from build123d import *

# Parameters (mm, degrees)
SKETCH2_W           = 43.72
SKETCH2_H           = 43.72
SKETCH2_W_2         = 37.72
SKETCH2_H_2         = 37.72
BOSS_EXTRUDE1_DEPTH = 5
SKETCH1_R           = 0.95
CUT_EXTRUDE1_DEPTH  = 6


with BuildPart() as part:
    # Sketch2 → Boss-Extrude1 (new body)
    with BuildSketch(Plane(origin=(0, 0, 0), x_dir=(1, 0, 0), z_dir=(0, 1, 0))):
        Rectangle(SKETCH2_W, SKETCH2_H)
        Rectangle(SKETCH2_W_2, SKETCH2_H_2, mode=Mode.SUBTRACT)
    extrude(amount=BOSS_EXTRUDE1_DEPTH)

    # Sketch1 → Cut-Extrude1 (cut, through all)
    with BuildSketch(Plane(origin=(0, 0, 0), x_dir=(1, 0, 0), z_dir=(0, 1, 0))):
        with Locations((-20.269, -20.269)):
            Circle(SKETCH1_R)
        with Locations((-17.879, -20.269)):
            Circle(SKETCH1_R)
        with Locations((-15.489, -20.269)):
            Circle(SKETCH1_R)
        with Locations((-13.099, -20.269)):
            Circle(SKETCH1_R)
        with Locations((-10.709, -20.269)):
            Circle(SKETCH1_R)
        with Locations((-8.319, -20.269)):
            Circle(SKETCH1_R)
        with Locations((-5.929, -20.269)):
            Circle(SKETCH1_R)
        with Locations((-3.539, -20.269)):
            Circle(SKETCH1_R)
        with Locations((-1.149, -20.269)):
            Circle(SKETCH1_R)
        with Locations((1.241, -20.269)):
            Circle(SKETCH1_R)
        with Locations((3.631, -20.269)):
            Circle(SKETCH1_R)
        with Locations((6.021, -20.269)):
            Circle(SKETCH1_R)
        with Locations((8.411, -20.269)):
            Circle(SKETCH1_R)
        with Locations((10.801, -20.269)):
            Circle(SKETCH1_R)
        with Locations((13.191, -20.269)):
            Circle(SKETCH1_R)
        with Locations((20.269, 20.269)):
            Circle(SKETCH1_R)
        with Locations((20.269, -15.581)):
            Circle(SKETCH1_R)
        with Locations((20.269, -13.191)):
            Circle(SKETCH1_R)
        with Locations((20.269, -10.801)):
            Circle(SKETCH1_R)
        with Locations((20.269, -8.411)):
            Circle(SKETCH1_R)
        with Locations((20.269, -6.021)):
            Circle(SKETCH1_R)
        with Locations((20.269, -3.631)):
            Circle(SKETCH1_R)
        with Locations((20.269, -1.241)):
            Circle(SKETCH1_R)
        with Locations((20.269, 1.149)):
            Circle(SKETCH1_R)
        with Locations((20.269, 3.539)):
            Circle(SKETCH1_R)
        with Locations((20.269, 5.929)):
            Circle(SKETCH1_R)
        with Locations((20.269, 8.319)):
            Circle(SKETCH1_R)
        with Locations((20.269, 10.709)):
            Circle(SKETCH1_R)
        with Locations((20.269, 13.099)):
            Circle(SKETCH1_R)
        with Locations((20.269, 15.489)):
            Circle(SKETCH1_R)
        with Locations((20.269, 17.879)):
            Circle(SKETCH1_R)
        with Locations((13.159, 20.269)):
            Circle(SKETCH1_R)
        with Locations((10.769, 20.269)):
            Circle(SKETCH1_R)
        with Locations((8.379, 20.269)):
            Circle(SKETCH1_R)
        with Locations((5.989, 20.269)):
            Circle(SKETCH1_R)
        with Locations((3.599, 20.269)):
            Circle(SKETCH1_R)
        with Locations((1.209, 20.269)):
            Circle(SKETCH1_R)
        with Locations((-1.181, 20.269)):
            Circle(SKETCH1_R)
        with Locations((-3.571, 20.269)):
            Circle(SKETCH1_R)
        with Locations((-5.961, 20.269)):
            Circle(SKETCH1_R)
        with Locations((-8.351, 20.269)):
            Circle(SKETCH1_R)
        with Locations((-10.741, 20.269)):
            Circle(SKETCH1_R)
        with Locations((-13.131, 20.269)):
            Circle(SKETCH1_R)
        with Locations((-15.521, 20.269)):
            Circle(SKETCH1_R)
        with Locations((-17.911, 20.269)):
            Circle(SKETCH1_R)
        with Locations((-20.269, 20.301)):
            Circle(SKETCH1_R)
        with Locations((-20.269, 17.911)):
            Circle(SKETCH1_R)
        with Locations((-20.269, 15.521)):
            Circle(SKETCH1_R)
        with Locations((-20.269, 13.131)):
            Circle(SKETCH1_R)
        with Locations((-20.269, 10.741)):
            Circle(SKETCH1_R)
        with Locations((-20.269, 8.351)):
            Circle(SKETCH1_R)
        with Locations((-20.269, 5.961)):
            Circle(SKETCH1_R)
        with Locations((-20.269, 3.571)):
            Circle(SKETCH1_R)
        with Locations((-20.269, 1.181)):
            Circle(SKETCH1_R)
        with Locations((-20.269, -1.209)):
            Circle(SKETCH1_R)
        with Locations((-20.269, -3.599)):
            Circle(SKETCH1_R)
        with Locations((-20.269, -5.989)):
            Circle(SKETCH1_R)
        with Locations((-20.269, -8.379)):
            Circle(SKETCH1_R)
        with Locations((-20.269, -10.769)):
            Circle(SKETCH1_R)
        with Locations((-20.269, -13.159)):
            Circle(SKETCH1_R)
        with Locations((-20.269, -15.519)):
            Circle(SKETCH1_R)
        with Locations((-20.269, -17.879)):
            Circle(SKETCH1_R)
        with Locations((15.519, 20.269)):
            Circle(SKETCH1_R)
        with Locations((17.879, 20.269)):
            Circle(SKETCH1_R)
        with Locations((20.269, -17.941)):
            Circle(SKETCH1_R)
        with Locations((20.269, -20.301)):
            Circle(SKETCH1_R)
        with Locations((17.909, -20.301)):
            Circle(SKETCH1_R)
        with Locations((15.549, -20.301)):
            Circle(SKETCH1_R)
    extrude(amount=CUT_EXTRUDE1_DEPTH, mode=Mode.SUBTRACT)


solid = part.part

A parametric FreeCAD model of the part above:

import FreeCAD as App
import Part
import Sketcher

V = App.Vector


def add_polygon(sketch, points):
    """Adds a closed chain of lines whose ends are joined by coincident constraints."""
    first, n = sketch.GeometryCount, len(points)
    for a, b in zip(points, points[1:] + points[:1]):
        sketch.addGeometry(Part.LineSegment(App.Vector(*a, 0), App.Vector(*b, 0)), False)
    for i in range(n):
        sketch.addConstraint(Sketcher.Constraint("Coincident", first + i, 2, first + (i + 1) % n, 1))

doc = App.newDocument("Part")
body = doc.addObject("PartDesign::Body", "Body")

# Sketch on XZ plane
sketch1 = body.newObject("Sketcher::SketchObject", "Sketch")
sketch1.AttachmentSupport = (doc.getObject("XZ_Plane"), [""])
sketch1.MapMode = "FlatFace"
add_polygon(sketch1, [(-21.86, -21.86), (-21.86, 21.86), (21.86, 21.86), (21.86, -21.86)])  # lines 0-3
add_polygon(sketch1, [(18.86, 18.86), (-18.86, 18.86), (-18.86, -18.86), (18.86, -18.86)])  # lines 4-7
sketch1.addConstraint([
    Sketcher.Constraint("Vertical", 0),
    Sketcher.Constraint("Horizontal", 1),
    Sketcher.Constraint("Vertical", 2),
    Sketcher.Constraint("Horizontal", 3),
    Sketcher.Constraint("Horizontal", 4),
    Sketcher.Constraint("Vertical", 5),
    Sketcher.Constraint("Horizontal", 6),
    Sketcher.Constraint("Vertical", 7),
    Sketcher.Constraint("Symmetric", 0, 2, 2, 2, -1, 1),
    Sketcher.Constraint("Symmetric", 4, 2, 6, 2, -1, 1),
    Sketcher.Constraint("Equal", 3, 0),
    Sketcher.Constraint("Equal", 6, 5),
    Sketcher.Constraint("DistanceX", 0, 2, 4, 2, 3.0),
    Sketcher.Constraint("DistanceX", 1, 1, 1, 2, 43.72),
])
pad1 = body.newObject("PartDesign::Pad", "Pad")
pad1.Profile = sketch1
pad1.Length = 5
pad1.Reversed = True

# Sketch on XZ plane
sketch2 = body.newObject("Sketcher::SketchObject", "Sketch001")
sketch2.AttachmentSupport = (doc.getObject("XZ_Plane"), [""])
sketch2.MapMode = "FlatFace"
sketch2.addGeometry([
    Part.Circle(V(-20.269, 20.269, 0), V(0, 0, 1), 0.95),  # 0
    Part.Circle(V(-17.879, 20.269, 0), V(0, 0, 1), 0.95),  # 1
    Part.Circle(V(-15.489, 20.269, 0), V(0, 0, 1), 0.95),  # 2
    Part.Circle(V(-13.099, 20.269, 0), V(0, 0, 1), 0.95),  # 3
    Part.Circle(V(-10.709, 20.269, 0), V(0, 0, 1), 0.95),  # 4
    Part.Circle(V(-8.319, 20.269, 0), V(0, 0, 1), 0.95),  # 5
    Part.Circle(V(-5.929, 20.269, 0), V(0, 0, 1), 0.95),  # 6
    Part.Circle(V(-3.539, 20.269, 0), V(0, 0, 1), 0.95),  # 7
    Part.Circle(V(-1.149, 20.269, 0), V(0, 0, 1), 0.95),  # 8
    Part.Circle(V(1.241, 20.269, 0), V(0, 0, 1), 0.95),  # 9
    Part.Circle(V(3.631, 20.269, 0), V(0, 0, 1), 0.95),  # 10
    Part.Circle(V(6.021, 20.269, 0), V(0, 0, 1), 0.95),  # 11
    Part.Circle(V(8.411, 20.269, 0), V(0, 0, 1), 0.95),  # 12
    Part.Circle(V(10.801, 20.269, 0), V(0, 0, 1), 0.95),  # 13
    Part.Circle(V(13.191, 20.269, 0), V(0, 0, 1), 0.95),  # 14
    Part.Circle(V(20.269, -20.269, 0), V(0, 0, 1), 0.95),  # 15
    Part.Circle(V(20.269, 15.581, 0), V(0, 0, 1), 0.95),  # 16
    Part.Circle(V(20.269, 13.191, 0), V(0, 0, 1), 0.95),  # 17
    Part.Circle(V(20.269, 10.801, 0), V(0, 0, 1), 0.95),  # 18
    Part.Circle(V(20.269, 8.411, 0), V(0, 0, 1), 0.95),  # 19
    Part.Circle(V(20.269, 6.021, 0), V(0, 0, 1), 0.95),  # 20
    Part.Circle(V(20.269, 3.631, 0), V(0, 0, 1), 0.95),  # 21
    Part.Circle(V(20.269, 1.241, 0), V(0, 0, 1), 0.95),  # 22
    Part.Circle(V(20.269, -1.149, 0), V(0, 0, 1), 0.95),  # 23
    Part.Circle(V(20.269, -3.539, 0), V(0, 0, 1), 0.95),  # 24
    Part.Circle(V(20.269, -5.929, 0), V(0, 0, 1), 0.95),  # 25
    Part.Circle(V(20.269, -8.319, 0), V(0, 0, 1), 0.95),  # 26
    Part.Circle(V(20.269, -10.709, 0), V(0, 0, 1), 0.95),  # 27
    Part.Circle(V(20.269, -13.099, 0), V(0, 0, 1), 0.95),  # 28
    Part.Circle(V(20.269, -15.489, 0), V(0, 0, 1), 0.95),  # 29
    Part.Circle(V(20.269, -17.879, 0), V(0, 0, 1), 0.95),  # 30
    Part.Circle(V(13.159, -20.269, 0), V(0, 0, 1), 0.95),  # 31
    Part.Circle(V(10.769, -20.269, 0), V(0, 0, 1), 0.95),  # 32
    Part.Circle(V(8.379, -20.269, 0), V(0, 0, 1), 0.95),  # 33
    Part.Circle(V(5.989, -20.269, 0), V(0, 0, 1), 0.95),  # 34
    Part.Circle(V(3.599, -20.269, 0), V(0, 0, 1), 0.95),  # 35
    Part.Circle(V(1.209, -20.269, 0), V(0, 0, 1), 0.95),  # 36
    Part.Circle(V(-1.181, -20.269, 0), V(0, 0, 1), 0.95),  # 37
    Part.Circle(V(-3.571, -20.269, 0), V(0, 0, 1), 0.95),  # 38
    Part.Circle(V(-5.961, -20.269, 0), V(0, 0, 1), 0.95),  # 39
    Part.Circle(V(-8.351, -20.269, 0), V(0, 0, 1), 0.95),  # 40
    Part.Circle(V(-10.741, -20.269, 0), V(0, 0, 1), 0.95),  # 41
    Part.Circle(V(-13.131, -20.269, 0), V(0, 0, 1), 0.95),  # 42
    Part.Circle(V(-15.521, -20.269, 0), V(0, 0, 1), 0.95),  # 43
    Part.Circle(V(-17.911, -20.269, 0), V(0, 0, 1), 0.95),  # 44
    Part.Circle(V(-20.269, -20.301, 0), V(0, 0, 1), 0.95),  # 45
    Part.Circle(V(-20.269, -17.911, 0), V(0, 0, 1), 0.95),  # 46
    Part.Circle(V(-20.269, -15.521, 0), V(0, 0, 1), 0.95),  # 47
    Part.Circle(V(-20.269, -13.131, 0), V(0, 0, 1), 0.95),  # 48
    Part.Circle(V(-20.269, -10.741, 0), V(0, 0, 1), 0.95),  # 49
    Part.Circle(V(-20.269, -8.351, 0), V(0, 0, 1), 0.95),  # 50
    Part.Circle(V(-20.269, -5.961, 0), V(0, 0, 1), 0.95),  # 51
    Part.Circle(V(-20.269, -3.571, 0), V(0, 0, 1), 0.95),  # 52
    Part.Circle(V(-20.269, -1.181, 0), V(0, 0, 1), 0.95),  # 53
    Part.Circle(V(-20.269, 1.209, 0), V(0, 0, 1), 0.95),  # 54
    Part.Circle(V(-20.269, 3.599, 0), V(0, 0, 1), 0.95),  # 55
    Part.Circle(V(-20.269, 5.989, 0), V(0, 0, 1), 0.95),  # 56
    Part.Circle(V(-20.269, 8.379, 0), V(0, 0, 1), 0.95),  # 57
    Part.Circle(V(-20.269, 10.769, 0), V(0, 0, 1), 0.95),  # 58
    Part.Circle(V(-20.269, 13.159, 0), V(0, 0, 1), 0.95),  # 59
    Part.Circle(V(-20.269, 15.519, 0), V(0, 0, 1), 0.95),  # 60
    Part.Circle(V(-20.269, 17.879, 0), V(0, 0, 1), 0.95),  # 61
    Part.Circle(V(15.519, -20.269, 0), V(0, 0, 1), 0.95),  # 62
    Part.Circle(V(17.879, -20.269, 0), V(0, 0, 1), 0.95),  # 63
    Part.Circle(V(20.269, 17.941, 0), V(0, 0, 1), 0.95),  # 64
    Part.Circle(V(20.269, 20.301, 0), V(0, 0, 1), 0.95),  # 65
    Part.Circle(V(17.909, 20.301, 0), V(0, 0, 1), 0.95),  # 66
    Part.Circle(V(15.549, 20.301, 0), V(0, 0, 1), 0.95),  # 67
], False)
sketch2.addConstraint([
    Sketcher.Constraint("Equal", 0, 1),
    Sketcher.Constraint("Equal", 1, 2),
    Sketcher.Constraint("Equal", 2, 3),
    Sketcher.Constraint("Equal", 3, 4),
    Sketcher.Constraint("Equal", 4, 5),
    Sketcher.Constraint("Equal", 5, 6),
    Sketcher.Constraint("Equal", 6, 7),
    Sketcher.Constraint("Equal", 7, 8),
    Sketcher.Constraint("Equal", 8, 9),
    Sketcher.Constraint("Equal", 9, 10),
    Sketcher.Constraint("Equal", 10, 11),
    Sketcher.Constraint("Equal", 11, 12),
    Sketcher.Constraint("Equal", 12, 13),
    Sketcher.Constraint("Equal", 13, 14),
    Sketcher.Constraint("Equal", 14, 15),
    Sketcher.Constraint("Equal", 15, 16),
    Sketcher.Constraint("Equal", 16, 17),
    Sketcher.Constraint("Equal", 17, 18),
    Sketcher.Constraint("Equal", 18, 19),
    Sketcher.Constraint("Equal", 19, 20),
    Sketcher.Constraint("Equal", 20, 21),
    Sketcher.Constraint("Equal", 21, 22),
    Sketcher.Constraint("Equal", 22, 23),
    Sketcher.Constraint("Equal", 23, 24),
    Sketcher.Constraint("Equal", 24, 25),
    Sketcher.Constraint("Equal", 25, 26),
    Sketcher.Constraint("Equal", 26, 27),
    Sketcher.Constraint("Equal", 27, 28),
    Sketcher.Constraint("Equal", 28, 29),
    Sketcher.Constraint("Equal", 29, 30),
    Sketcher.Constraint("Equal", 30, 31),
    Sketcher.Constraint("Equal", 31, 32),
    Sketcher.Constraint("Equal", 32, 33),
    Sketcher.Constraint("Equal", 33, 34),
    Sketcher.Constraint("Equal", 34, 35),
    Sketcher.Constraint("Equal", 35, 36),
    Sketcher.Constraint("Equal", 36, 37),
    Sketcher.Constraint("Equal", 37, 38),
    Sketcher.Constraint("Equal", 38, 39),
    Sketcher.Constraint("Equal", 39, 40),
    Sketcher.Constraint("Equal", 40, 41),
    Sketcher.Constraint("Equal", 41, 42),
    Sketcher.Constraint("Equal", 42, 43),
    Sketcher.Constraint("Equal", 43, 44),
    Sketcher.Constraint("Equal", 44, 45),
    Sketcher.Constraint("Equal", 45, 46),
    Sketcher.Constraint("Equal", 46, 47),
    Sketcher.Constraint("Equal", 47, 48),
    Sketcher.Constraint("Equal", 48, 49),
    Sketcher.Constraint("Equal", 49, 50),
    Sketcher.Constraint("Equal", 50, 51),
    Sketcher.Constraint("Equal", 51, 52),
    Sketcher.Constraint("Equal", 52, 53),
    Sketcher.Constraint("Equal", 53, 54),
    Sketcher.Constraint("Equal", 54, 55),
    Sketcher.Constraint("Equal", 55, 56),
    Sketcher.Constraint("Equal", 56, 57),
    Sketcher.Constraint("Equal", 57, 58),
    Sketcher.Constraint("Equal", 58, 59),
    Sketcher.Constraint("Equal", 59, 60),
    Sketcher.Constraint("Equal", 60, 61),
    Sketcher.Constraint("Equal", 61, 62),
    Sketcher.Constraint("Equal", 62, 63),
    Sketcher.Constraint("Equal", 63, 64),
    Sketcher.Constraint("Equal", 64, 65),
    Sketcher.Constraint("Equal", 65, 66),
    Sketcher.Constraint("Equal", 66, 67),
    Sketcher.Constraint("Symmetric", 0, 3, 15, 3, -1, 1),
    Sketcher.Constraint("Symmetric", 30, 3, 61, 3, -1, 1),
    Sketcher.Constraint("Symmetric", 1, 3, 63, 3, -1, 1),
    Sketcher.Constraint("Symmetric", 45, 3, 65, 3, -1, 1),
    Sketcher.Constraint("Horizontal", 0, 3, 1, 3),
    Sketcher.Constraint("Horizontal", 1, 3, 2, 3),
    Sketcher.Constraint("Horizontal", 2, 3, 3, 3),
    Sketcher.Constraint("Horizontal", 3, 3, 4, 3),
    Sketcher.Constraint("Horizontal", 4, 3, 5, 3),
    Sketcher.Constraint("Horizontal", 5, 3, 6, 3),
    Sketcher.Constraint("Horizontal", 6, 3, 7, 3),
    Sketcher.Constraint("Horizontal", 7, 3, 8, 3),
    Sketcher.Constraint("Horizontal", 8, 3, 9, 3),
    Sketcher.Constraint("Horizontal", 9, 3, 10, 3),
    Sketcher.Constraint("Horizontal", 10, 3, 11, 3),
    Sketcher.Constraint("Horizontal", 11, 3, 12, 3),
    Sketcher.Constraint("Horizontal", 12, 3, 13, 3),
    Sketcher.Constraint("Horizontal", 13, 3, 14, 3),
    Sketcher.Constraint("Horizontal", 15, 3, 31, 3),
    Sketcher.Constraint("Horizontal", 31, 3, 32, 3),
    Sketcher.Constraint("Horizontal", 32, 3, 33, 3),
    Sketcher.Constraint("Horizontal", 33, 3, 34, 3),
    Sketcher.Constraint("Horizontal", 34, 3, 35, 3),
    Sketcher.Constraint("Horizontal", 35, 3, 36, 3),
    Sketcher.Constraint("Horizontal", 36, 3, 37, 3),
    Sketcher.Constraint("Horizontal", 37, 3, 38, 3),
    Sketcher.Constraint("Horizontal", 38, 3, 39, 3),
    Sketcher.Constraint("Horizontal", 39, 3, 40, 3),
    Sketcher.Constraint("Horizontal", 40, 3, 41, 3),
    Sketcher.Constraint("Horizontal", 41, 3, 42, 3),
    Sketcher.Constraint("Horizontal", 42, 3, 43, 3),
    Sketcher.Constraint("Horizontal", 43, 3, 44, 3),
    Sketcher.Constraint("Horizontal", 44, 3, 62, 3),
    Sketcher.Constraint("Horizontal", 65, 3, 66, 3),
    Sketcher.Constraint("Horizontal", 66, 3, 67, 3),
    Sketcher.Constraint("Vertical", 15, 3, 16, 3),
    Sketcher.Constraint("Vertical", 16, 3, 17, 3),
    Sketcher.Constraint("Vertical", 17, 3, 18, 3),
    Sketcher.Constraint("Vertical", 18, 3, 19, 3),
    Sketcher.Constraint("Vertical", 19, 3, 20, 3),
    Sketcher.Constraint("Vertical", 20, 3, 21, 3),
    Sketcher.Constraint("Vertical", 21, 3, 22, 3),
    Sketcher.Constraint("Vertical", 22, 3, 23, 3),
    Sketcher.Constraint("Vertical", 23, 3, 24, 3),
    Sketcher.Constraint("Vertical", 24, 3, 25, 3),
    Sketcher.Constraint("Vertical", 25, 3, 26, 3),
    Sketcher.Constraint("Vertical", 26, 3, 27, 3),
    Sketcher.Constraint("Vertical", 27, 3, 28, 3),
    Sketcher.Constraint("Vertical", 28, 3, 29, 3),
    Sketcher.Constraint("Vertical", 29, 3, 30, 3),
    Sketcher.Constraint("Vertical", 0, 3, 45, 3),
    Sketcher.Constraint("Vertical", 45, 3, 46, 3),
    Sketcher.Constraint("Vertical", 46, 3, 47, 3),
    Sketcher.Constraint("Vertical", 47, 3, 48, 3),
    Sketcher.Constraint("Vertical", 48, 3, 49, 3),
    Sketcher.Constraint("Vertical", 49, 3, 50, 3),
    Sketcher.Constraint("Vertical", 50, 3, 51, 3),
    Sketcher.Constraint("Vertical", 51, 3, 52, 3),
    Sketcher.Constraint("Vertical", 52, 3, 53, 3),
    Sketcher.Constraint("Vertical", 53, 3, 54, 3),
    Sketcher.Constraint("Vertical", 54, 3, 55, 3),
    Sketcher.Constraint("Vertical", 55, 3, 56, 3),
    Sketcher.Constraint("Vertical", 56, 3, 57, 3),
    Sketcher.Constraint("Vertical", 57, 3, 58, 3),
    Sketcher.Constraint("Vertical", 58, 3, 59, 3),
    Sketcher.Constraint("Vertical", 59, 3, 60, 3),
    Sketcher.Constraint("Vertical", 30, 3, 64, 3),
    Sketcher.Constraint("Diameter", 0, 1.9),
    Sketcher.Constraint("DistanceX", 0, 3, -1, 1, 20.269),
    Sketcher.Constraint("DistanceY", -1, 1, 0, 3, 20.269),
    Sketcher.Constraint("DistanceX", 1, 3, -1, 1, 17.879),
    Sketcher.Constraint("DistanceX", 2, 3, -1, 1, 15.489),
    Sketcher.Constraint("DistanceX", 3, 3, -1, 1, 13.099),
    Sketcher.Constraint("DistanceX", 4, 3, -1, 1, 10.709),
    Sketcher.Constraint("DistanceX", 5, 3, -1, 1, 8.319),
    Sketcher.Constraint("DistanceX", 6, 3, -1, 1, 5.929),
    Sketcher.Constraint("DistanceX", 7, 3, -1, 1, 3.539),
    Sketcher.Constraint("DistanceX", 8, 3, -1, 1, 1.149),
    Sketcher.Constraint("DistanceX", -1, 1, 9, 3, 1.241),
    Sketcher.Constraint("DistanceX", -1, 1, 10, 3, 3.631),
    Sketcher.Constraint("DistanceX", -1, 1, 11, 3, 6.021),
    Sketcher.Constraint("DistanceX", -1, 1, 12, 3, 8.411),
    Sketcher.Constraint("DistanceX", -1, 1, 13, 3, 10.801),
    Sketcher.Constraint("DistanceX", -1, 1, 14, 3, 13.191),
    Sketcher.Constraint("DistanceY", -1, 1, 16, 3, 15.581),
    Sketcher.Constraint("DistanceY", -1, 1, 17, 3, 13.191),
    Sketcher.Constraint("DistanceY", -1, 1, 18, 3, 10.801),
    Sketcher.Constraint("DistanceY", -1, 1, 19, 3, 8.411),
    Sketcher.Constraint("DistanceY", -1, 1, 20, 3, 6.021),
    Sketcher.Constraint("DistanceY", -1, 1, 21, 3, 3.631),
    Sketcher.Constraint("DistanceY", -1, 1, 22, 3, 1.241),
    Sketcher.Constraint("DistanceY", 23, 3, -1, 1, 1.149),
    Sketcher.Constraint("DistanceY", 24, 3, -1, 1, 3.539),
    Sketcher.Constraint("DistanceY", 25, 3, -1, 1, 5.929),
    Sketcher.Constraint("DistanceY", 26, 3, -1, 1, 8.319),
    Sketcher.Constraint("DistanceY", 27, 3, -1, 1, 10.709),
    Sketcher.Constraint("DistanceY", 28, 3, -1, 1, 13.099),
    Sketcher.Constraint("DistanceY", 29, 3, -1, 1, 15.489),
    Sketcher.Constraint("DistanceY", 30, 3, -1, 1, 17.879),
    Sketcher.Constraint("DistanceX", -1, 1, 31, 3, 13.159),
    Sketcher.Constraint("DistanceX", -1, 1, 32, 3, 10.769),
    Sketcher.Constraint("DistanceX", -1, 1, 33, 3, 8.379),
    Sketcher.Constraint("DistanceX", -1, 1, 34, 3, 5.989),
    Sketcher.Constraint("DistanceX", -1, 1, 35, 3, 3.599),
    Sketcher.Constraint("DistanceX", -1, 1, 36, 3, 1.209),
    Sketcher.Constraint("DistanceX", 37, 3, -1, 1, 1.181),
    Sketcher.Constraint("DistanceX", 38, 3, -1, 1, 3.571),
    Sketcher.Constraint("DistanceX", 39, 3, -1, 1, 5.961),
    Sketcher.Constraint("DistanceX", 40, 3, -1, 1, 8.351),
    Sketcher.Constraint("DistanceX", 41, 3, -1, 1, 10.741),
    Sketcher.Constraint("DistanceX", 42, 3, -1, 1, 13.131),
    Sketcher.Constraint("DistanceX", 43, 3, -1, 1, 15.521),
    Sketcher.Constraint("DistanceX", 44, 3, -1, 1, 17.911),
    Sketcher.Constraint("DistanceY", 45, 3, -1, 1, 20.301),
    Sketcher.Constraint("DistanceY", 46, 3, -1, 1, 17.911),
    Sketcher.Constraint("DistanceY", 47, 3, -1, 1, 15.521),
    Sketcher.Constraint("DistanceY", 48, 3, -1, 1, 13.131),
    Sketcher.Constraint("DistanceY", 49, 3, -1, 1, 10.741),
    Sketcher.Constraint("DistanceY", 50, 3, -1, 1, 8.351),
    Sketcher.Constraint("DistanceY", 51, 3, -1, 1, 5.961),
    Sketcher.Constraint("DistanceY", 52, 3, -1, 1, 3.571),
    Sketcher.Constraint("DistanceY", 53, 3, -1, 1, 1.181),
    Sketcher.Constraint("DistanceY", -1, 1, 54, 3, 1.209),
    Sketcher.Constraint("DistanceY", -1, 1, 55, 3, 3.599),
    Sketcher.Constraint("DistanceY", -1, 1, 56, 3, 5.989),
    Sketcher.Constraint("DistanceY", -1, 1, 57, 3, 8.379),
    Sketcher.Constraint("DistanceY", -1, 1, 58, 3, 10.769),
    Sketcher.Constraint("DistanceY", -1, 1, 59, 3, 13.159),
    Sketcher.Constraint("DistanceY", -1, 1, 60, 3, 15.519),
    Sketcher.Constraint("DistanceX", -1, 1, 62, 3, 15.519),
    Sketcher.Constraint("DistanceY", -1, 1, 64, 3, 17.941),
    Sketcher.Constraint("DistanceX", -1, 1, 66, 3, 17.909),
    Sketcher.Constraint("DistanceX", -1, 1, 67, 3, 15.549),
])
pocket1 = body.newObject("PartDesign::Pocket", "Pocket")
pocket1.Profile = sketch2
pocket1.Type = "ThroughAll"

doc.recompute()
